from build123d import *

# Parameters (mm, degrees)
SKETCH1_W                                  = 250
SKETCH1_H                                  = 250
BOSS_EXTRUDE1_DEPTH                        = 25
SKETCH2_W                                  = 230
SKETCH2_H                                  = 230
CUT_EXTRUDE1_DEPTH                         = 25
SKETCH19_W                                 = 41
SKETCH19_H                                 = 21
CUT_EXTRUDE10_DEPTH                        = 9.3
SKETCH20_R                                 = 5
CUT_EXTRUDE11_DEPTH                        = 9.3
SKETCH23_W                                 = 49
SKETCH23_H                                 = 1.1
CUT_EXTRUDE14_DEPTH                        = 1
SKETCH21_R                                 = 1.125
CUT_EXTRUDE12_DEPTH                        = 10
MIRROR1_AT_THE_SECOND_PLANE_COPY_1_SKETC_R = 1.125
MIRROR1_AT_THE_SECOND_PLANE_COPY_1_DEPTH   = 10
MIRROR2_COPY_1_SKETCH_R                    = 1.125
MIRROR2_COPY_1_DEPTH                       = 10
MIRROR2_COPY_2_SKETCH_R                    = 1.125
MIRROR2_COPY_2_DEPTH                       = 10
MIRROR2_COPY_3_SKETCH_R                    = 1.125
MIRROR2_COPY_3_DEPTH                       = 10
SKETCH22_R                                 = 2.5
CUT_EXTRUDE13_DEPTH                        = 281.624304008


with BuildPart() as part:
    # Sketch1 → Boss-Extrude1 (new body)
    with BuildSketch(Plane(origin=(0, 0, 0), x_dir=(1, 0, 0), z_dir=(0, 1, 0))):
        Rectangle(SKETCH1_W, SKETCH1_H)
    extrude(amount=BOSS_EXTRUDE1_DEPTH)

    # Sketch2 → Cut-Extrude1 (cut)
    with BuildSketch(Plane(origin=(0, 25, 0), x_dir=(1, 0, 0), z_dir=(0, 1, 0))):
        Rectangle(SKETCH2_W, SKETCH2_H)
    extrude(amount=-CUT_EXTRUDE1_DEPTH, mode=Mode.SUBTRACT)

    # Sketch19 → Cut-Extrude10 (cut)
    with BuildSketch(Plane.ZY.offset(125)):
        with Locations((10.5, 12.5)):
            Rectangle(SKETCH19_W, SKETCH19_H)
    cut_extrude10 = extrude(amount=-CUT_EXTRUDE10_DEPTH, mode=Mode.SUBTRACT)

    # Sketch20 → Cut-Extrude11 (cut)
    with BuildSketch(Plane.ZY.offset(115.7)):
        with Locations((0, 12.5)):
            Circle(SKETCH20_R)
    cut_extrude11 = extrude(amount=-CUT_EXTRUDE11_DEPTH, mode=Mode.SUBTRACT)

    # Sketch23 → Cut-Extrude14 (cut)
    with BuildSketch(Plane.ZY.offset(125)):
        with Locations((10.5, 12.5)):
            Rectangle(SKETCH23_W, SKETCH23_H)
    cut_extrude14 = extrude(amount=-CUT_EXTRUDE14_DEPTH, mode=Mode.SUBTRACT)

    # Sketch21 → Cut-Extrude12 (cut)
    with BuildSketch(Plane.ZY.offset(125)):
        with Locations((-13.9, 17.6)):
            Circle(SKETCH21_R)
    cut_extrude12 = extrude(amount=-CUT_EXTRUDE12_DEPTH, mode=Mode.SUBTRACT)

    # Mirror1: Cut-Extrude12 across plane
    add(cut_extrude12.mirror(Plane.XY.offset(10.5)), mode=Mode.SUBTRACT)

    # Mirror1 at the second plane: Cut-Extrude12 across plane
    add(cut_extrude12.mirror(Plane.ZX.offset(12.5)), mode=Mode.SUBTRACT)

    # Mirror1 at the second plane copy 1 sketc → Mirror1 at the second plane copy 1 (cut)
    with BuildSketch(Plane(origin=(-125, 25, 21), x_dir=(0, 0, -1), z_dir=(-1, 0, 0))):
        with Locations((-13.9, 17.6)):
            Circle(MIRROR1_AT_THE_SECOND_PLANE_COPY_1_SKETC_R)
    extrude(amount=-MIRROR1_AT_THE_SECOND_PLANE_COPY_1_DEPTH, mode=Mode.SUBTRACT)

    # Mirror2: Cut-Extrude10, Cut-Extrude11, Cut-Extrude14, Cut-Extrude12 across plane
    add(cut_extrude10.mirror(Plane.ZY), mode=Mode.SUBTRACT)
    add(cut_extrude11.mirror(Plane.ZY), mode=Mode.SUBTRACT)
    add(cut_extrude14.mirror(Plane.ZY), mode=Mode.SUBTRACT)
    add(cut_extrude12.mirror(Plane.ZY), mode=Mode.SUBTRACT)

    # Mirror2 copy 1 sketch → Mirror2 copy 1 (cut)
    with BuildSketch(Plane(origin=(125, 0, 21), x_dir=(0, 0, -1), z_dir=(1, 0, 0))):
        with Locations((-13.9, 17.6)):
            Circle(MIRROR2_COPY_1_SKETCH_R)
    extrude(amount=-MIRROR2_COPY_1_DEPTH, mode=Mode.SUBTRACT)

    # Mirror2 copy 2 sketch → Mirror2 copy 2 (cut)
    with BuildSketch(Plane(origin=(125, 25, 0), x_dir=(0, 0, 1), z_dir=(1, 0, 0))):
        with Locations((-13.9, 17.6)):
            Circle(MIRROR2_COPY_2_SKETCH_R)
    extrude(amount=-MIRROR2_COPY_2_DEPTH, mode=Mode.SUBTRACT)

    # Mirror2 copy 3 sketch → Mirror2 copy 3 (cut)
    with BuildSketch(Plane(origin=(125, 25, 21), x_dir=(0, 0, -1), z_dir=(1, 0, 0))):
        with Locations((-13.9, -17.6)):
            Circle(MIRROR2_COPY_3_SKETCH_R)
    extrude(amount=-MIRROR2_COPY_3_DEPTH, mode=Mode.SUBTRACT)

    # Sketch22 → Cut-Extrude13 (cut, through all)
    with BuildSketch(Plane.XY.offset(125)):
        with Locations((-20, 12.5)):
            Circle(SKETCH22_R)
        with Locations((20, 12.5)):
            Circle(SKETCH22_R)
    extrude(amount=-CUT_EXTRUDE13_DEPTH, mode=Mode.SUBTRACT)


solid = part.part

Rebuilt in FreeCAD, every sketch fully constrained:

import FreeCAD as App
import Part
import Sketcher
from FreeCAD import Vector
Q = App.Units.Quantity


def add_polygon(sketch, points):
    """Adds a closed chain of lines whose ends are joined by coincident constraints."""
    first, n = sketch.GeometryCount, len(points)
    for a, b in zip(points, points[1:] + points[:1]):
        sketch.addGeometry(Part.LineSegment(App.Vector(*a, 0), App.Vector(*b, 0)), False)
    for i in range(n):
        sketch.addConstraint(Sketcher.Constraint("Coincident", first + i, 2, first + (i + 1) % n, 1))

doc = App.newDocument("Part")
body = doc.addObject("PartDesign::Body", "Body")

# Sketch on XZ plane
sketch1 = body.newObject("Sketcher::SketchObject", "Sketch")
sketch1.AttachmentSupport = (doc.getObject("XZ_Plane"), [""])
sketch1.MapMode = "FlatFace"
add_polygon(sketch1, [(-125, -125), (-125, 125), (125, 125), (125, -125)])  # lines 0-3
sketch1.addConstraint([
    Sketcher.Constraint("Vertical", 0),
    Sketcher.Constraint("Horizontal", 1),
    Sketcher.Constraint("Vertical", 2),
    Sketcher.Constraint("Horizontal", 3),
    Sketcher.Constraint("Symmetric", 0, 2, 2, 2, -1, 1),
    Sketcher.Constraint("Equal", 3, 0),
    Sketcher.Constraint("DistanceX", 1, 1, 1, 2, Q("250 mm")),
])
pad1 = body.newObject("PartDesign::Pad", "Pad")
pad1.Profile = sketch1
pad1.Length = 25
pad1.Reversed = True

# Sketch on XZ plane
sketch2 = body.newObject("Sketcher::SketchObject", "Sketch001")
sketch2.AttachmentSupport = (doc.getObject("XZ_Plane"), [""])
sketch2.MapMode = "FlatFace"
sketch2.AttachmentOffset = App.Placement(Vector(0, 0, -25), App.Rotation())
add_polygon(sketch2, [(-115, -115), (-115, 115), (115, 115), (115, -115)])  # lines 0-3
sketch2.addConstraint([
    Sketcher.Constraint("Vertical", 0),
    Sketcher.Constraint("Horizontal", 1),
    Sketcher.Constraint("Vertical", 2),
    Sketcher.Constraint("Horizontal", 3),
    Sketcher.Constraint("Symmetric", 0, 2, 2, 2, -1, 1),
    Sketcher.Constraint("Equal", 3, 0),
    Sketcher.Constraint("DistanceX", 1, 1, 1, 2, Q("230 mm")),
])
pocket1 = body.newObject("PartDesign::Pocket", "Pocket")
pocket1.Profile = sketch2
pocket1.Length = 25
pocket1.Reversed = True

# Sketch on YZ plane
sketch3 = body.newObject("Sketcher::SketchObject", "Sketch002")
sketch3.AttachmentSupport = (doc.getObject("YZ_Plane"), [""])
sketch3.MapMode = "FlatFace"
sketch3.AttachmentOffset = App.Placement(Vector(0, 0, -125), App.Rotation())
add_polygon(sketch3, [(23, -10), (2, -10), (2, 31), (23, 31)])  # lines 0-3
sketch3.addConstraint([
    Sketcher.Constraint("Horizontal", 0),
    Sketcher.Constraint("Vertical", 1),
    Sketcher.Constraint("Horizontal", 2),
    Sketcher.Constraint("Vertical", 3),
    Sketcher.Constraint("DistanceX", 0, 2, 0, 1, Q("21 mm")),
    Sketcher.Constraint("DistanceY", 1, 1, 1, 2, Q("41 mm")),
    Sketcher.Constraint("DistanceX", -1, 1, 0, 2, Q("2 mm")),
    Sketcher.Constraint("DistanceY", 0, 2, -1, 1, Q("10 mm")),
])
pocket2 = body.newObject("PartDesign::Pocket", "Pocket001")
pocket2.Profile = sketch3
pocket2.Length = 9.3
pocket2.Reversed = True

# Sketch on YZ plane
sketch4 = body.newObject("Sketcher::SketchObject", "Sketch003")
sketch4.AttachmentSupport = (doc.getObject("YZ_Plane"), [""])
sketch4.MapMode = "FlatFace"
sketch4.AttachmentOffset = App.Placement(Vector(0, 0, -115.7), App.Rotation())
sketch4.addGeometry(Part.Circle(Vector(12, 0, 0), Vector(0, 0, 1), 5), False)
sketch4.addConstraint([
    Sketcher.Constraint("PointOnObject", 0, 3, -1),
    Sketcher.Constraint("Diameter", 0, Q("10 mm")),
    Sketcher.Constraint("DistanceX", -1, 1, 0, 3, Q("12.5 mm")),
])
pocket3 = body.newObject("PartDesign::Pocket", "Pocket002")
pocket3.Profile = sketch4
pocket3.Length = 9.3
pocket3.Reversed = True

# Sketch on YZ plane
sketch5 = body.newObject("Sketcher::SketchObject", "Sketch004")
sketch5.AttachmentSupport = (doc.getObject("YZ_Plane"), [""])
sketch5.MapMode = "FlatFace"
sketch5.AttachmentOffset = App.Placement(Vector(0, 0, -125), App.Rotation())
add_polygon(sketch5, [(13.1, -14), (11.9, -14), (11.9, 35), (13.1, 35)])  # lines 0-3
sketch5.addConstraint([
    Sketcher.Constraint("Horizontal", 0),
    Sketcher.Constraint("Vertical", 1),
    Sketcher.Constraint("Horizontal", 2),
    Sketcher.Constraint("Vertical", 3),
    Sketcher.Constraint("DistanceY", 1, 1, 1, 2, Q("49 mm")),
    Sketcher.Constraint("DistanceX", 0, 2, 0, 1, Q("1.1 mm")),
    Sketcher.Constraint("DistanceY", 0, 2, -1, 1, Q("14 mm")),
    Sketcher.Constraint("DistanceX", -1, 1, 0, 2, Q("11.95 mm")),
])
pocket4 = body.newObject("PartDesign::Pocket", "Pocket003")
pocket4.Profile = sketch5
pocket4.Length = 1
pocket4.Reversed = True

# Sketch on YZ plane
sketch6 = body.newObject("Sketcher::SketchObject", "Sketch005")
sketch6.AttachmentSupport = (doc.getObject("YZ_Plane"), [""])
sketch6.MapMode = "FlatFace"
sketch6.AttachmentOffset = App.Placement(Vector(0, 0, -125), App.Rotation())
sketch6.addGeometry(Part.Circle(Vector(17.6, -13.9, 0), Vector(0, 0, 1), 1.1), False)
sketch6.addConstraint([
    Sketcher.Constraint("Diameter", 0, Q("2.25 mm")),
    Sketcher.Constraint("DistanceX", -1, 1, 0, 3, Q("17.6 mm")),
    Sketcher.Constraint("DistanceY", 0, 3, -1, 1, Q("13.9 mm")),
])
pocket5 = body.newObject("PartDesign::Pocket", "Pocket004")
pocket5.Profile = sketch6
pocket5.Length = 10
pocket5.Reversed = True
doc.recompute()

datumplane = body.newObject("PartDesign::Plane", "DatumPlane")
datumplane.AttachmentSupport = (doc.getObject("XY_Plane"), [""])
datumplane.MapMode = "FlatFace"
datumplane.AttachmentOffset = App.Placement(Vector(0, 0, 10.5), App.Rotation())
mirrored = body.newObject("PartDesign::Mirrored", "Mirrored")
mirrored.Originals = [pocket5]
mirrored.MirrorPlane = (datumplane, [""])
body.Tip = mirrored
doc.recompute()

datumplane2 = body.newObject("PartDesign::Plane", "DatumPlane001")
datumplane2.AttachmentSupport = (doc.getObject("XZ_Plane"), [""])
datumplane2.MapMode = "FlatFace"
datumplane2.AttachmentOffset = App.Placement(Vector(0, 0, -12.5), App.Rotation())
mirrored2 = body.newObject("PartDesign::Mirrored", "Mirrored001")
mirrored2.Originals = [pocket5]
mirrored2.MirrorPlane = (datumplane2, [""])
body.Tip = mirrored2

# Sketch on YZ plane
sketch7 = body.newObject("Sketcher::SketchObject", "Sketch006")
sketch7.AttachmentSupport = (doc.getObject("YZ_Plane"), [""])
sketch7.MapMode = "FlatFace"
sketch7.AttachmentOffset = App.Placement(Vector(0, 0, -125), App.Rotation())
sketch7.addGeometry(Part.Circle(Vector(7.4, 34.9, 0), Vector(0, 0, 1), 1.1), False)
sketch7.addConstraint([
    Sketcher.Constraint("Diameter", 0, Q("2.25 mm")),
    Sketcher.Constraint("DistanceX", -1, 1, 0, 3, Q("7.4 mm")),
    Sketcher.Constraint("DistanceY", -1, 1, 0, 3, Q("34.9 mm")),
])
pocket6 = body.newObject("PartDesign::Pocket", "Pocket005")
pocket6.Profile = sketch7
pocket6.Length = 10
pocket6.Reversed = True
doc.recompute()

mirrored3 = body.newObject("PartDesign::Mirrored", "Mirrored002")
mirrored3.Originals = [pocket2, pocket3, pocket4, pocket5]
mirrored3.MirrorPlane = (doc.getObject("YZ_Plane"), [""])
body.Tip = mirrored3

# Sketch on YZ plane
sketch8 = body.newObject("Sketcher::SketchObject", "Sketch007")
sketch8.AttachmentSupport = (doc.getObject("YZ_Plane"), [""])
sketch8.MapMode = "FlatFace"
sketch8.AttachmentOffset = App.Placement(Vector(0, 0, 125), App.Rotation())
sketch8.addGeometry(Part.Circle(Vector(17.6, 34.9, 0), Vector(0, 0, 1), 1.1), False)
sketch8.addConstraint([
    Sketcher.Constraint("Diameter", 0, Q("2.25 mm")),
    Sketcher.Constraint("DistanceX", -1, 1, 0, 3, Q("17.6 mm")),
    Sketcher.Constraint("DistanceY", -1, 1, 0, 3, Q("34.9 mm")),
])
pocket7 = body.newObject("PartDesign::Pocket", "Pocket006")
pocket7.Profile = sketch8
pocket7.Length = 10

# Sketch on YZ plane
sketch9 = body.newObject("Sketcher::SketchObject", "Sketch008")
sketch9.AttachmentSupport = (doc.getObject("YZ_Plane"), [""])
sketch9.MapMode = "FlatFace"
sketch9.AttachmentOffset = App.Placement(Vector(0, 0, 125), App.Rotation())
sketch9.addGeometry(Part.Circle(Vector(7.4, -13.9, 0), Vector(0, 0, 1), 1.1), False)
sketch9.addConstraint([
    Sketcher.Constraint("Diameter", 0, Q("2.25 mm")),
    Sketcher.Constraint("DistanceX", -1, 1, 0, 3, Q("7.4 mm")),
    Sketcher.Constraint("DistanceY", 0, 3, -1, 1, Q("13.9 mm")),
])
pocket8 = body.newObject("PartDesign::Pocket", "Pocket007")
pocket8.Profile = sketch9
pocket8.Length = 10

# Sketch on YZ plane
sketch10 = body.newObject("Sketcher::SketchObject", "Sketch009")
sketch10.AttachmentSupport = (doc.getObject("YZ_Plane"), [""])
sketch10.MapMode = "FlatFace"
sketch10.AttachmentOffset = App.Placement(Vector(0, 0, 125), App.Rotation())
sketch10.addGeometry(Part.Circle(Vector(7.4, 34.9, 0), Vector(0, 0, 1), 1.1), False)
sketch10.addConstraint([
    Sketcher.Constraint("Diameter", 0, Q("2.25 mm")),
    Sketcher.Constraint("DistanceX", -1, 1, 0, 3, Q("7.4 mm")),
    Sketcher.Constraint("DistanceY", -1, 1, 0, 3, Q("34.9 mm")),
])
pocket9 = body.newObject("PartDesign::Pocket", "Pocket008")
pocket9.Profile = sketch10
pocket9.Length = 10

# Sketch on XY plane
sketch11 = body.newObject("Sketcher::SketchObject", "Sketch010")
sketch11.AttachmentSupport = (doc.getObject("XY_Plane"), [""])
sketch11.MapMode = "FlatFace"
sketch11.AttachmentOffset = App.Placement(Vector(0, 0, 125), App.Rotation())
sketch11.addGeometry([
    Part.Circle(Vector(-20, 12.5, 0), Vector(0, 0, 1), 2.5),
    Part.Circle(Vector(20, 12.5, 0), Vector(0, 0, 1), 2.5),
], False)
sketch11.addConstraint([
    Sketcher.Constraint("Equal", 0, 1),
    Sketcher.Constraint("Symmetric", 0, 3, 1, 3, -2),
    Sketcher.Constraint("Diameter", 0, Q("5 mm")),
    Sketcher.Constraint("DistanceX", 0, 3, -1, 1, Q("20 mm")),
    Sketcher.Constraint("DistanceY", -1, 1, 0, 3, Q("12.5 mm")),
])
pocket10 = body.newObject("PartDesign::Pocket", "Pocket009")
pocket10.Profile = sketch11
pocket10.Type = "ThroughAll"

doc.recompute()
